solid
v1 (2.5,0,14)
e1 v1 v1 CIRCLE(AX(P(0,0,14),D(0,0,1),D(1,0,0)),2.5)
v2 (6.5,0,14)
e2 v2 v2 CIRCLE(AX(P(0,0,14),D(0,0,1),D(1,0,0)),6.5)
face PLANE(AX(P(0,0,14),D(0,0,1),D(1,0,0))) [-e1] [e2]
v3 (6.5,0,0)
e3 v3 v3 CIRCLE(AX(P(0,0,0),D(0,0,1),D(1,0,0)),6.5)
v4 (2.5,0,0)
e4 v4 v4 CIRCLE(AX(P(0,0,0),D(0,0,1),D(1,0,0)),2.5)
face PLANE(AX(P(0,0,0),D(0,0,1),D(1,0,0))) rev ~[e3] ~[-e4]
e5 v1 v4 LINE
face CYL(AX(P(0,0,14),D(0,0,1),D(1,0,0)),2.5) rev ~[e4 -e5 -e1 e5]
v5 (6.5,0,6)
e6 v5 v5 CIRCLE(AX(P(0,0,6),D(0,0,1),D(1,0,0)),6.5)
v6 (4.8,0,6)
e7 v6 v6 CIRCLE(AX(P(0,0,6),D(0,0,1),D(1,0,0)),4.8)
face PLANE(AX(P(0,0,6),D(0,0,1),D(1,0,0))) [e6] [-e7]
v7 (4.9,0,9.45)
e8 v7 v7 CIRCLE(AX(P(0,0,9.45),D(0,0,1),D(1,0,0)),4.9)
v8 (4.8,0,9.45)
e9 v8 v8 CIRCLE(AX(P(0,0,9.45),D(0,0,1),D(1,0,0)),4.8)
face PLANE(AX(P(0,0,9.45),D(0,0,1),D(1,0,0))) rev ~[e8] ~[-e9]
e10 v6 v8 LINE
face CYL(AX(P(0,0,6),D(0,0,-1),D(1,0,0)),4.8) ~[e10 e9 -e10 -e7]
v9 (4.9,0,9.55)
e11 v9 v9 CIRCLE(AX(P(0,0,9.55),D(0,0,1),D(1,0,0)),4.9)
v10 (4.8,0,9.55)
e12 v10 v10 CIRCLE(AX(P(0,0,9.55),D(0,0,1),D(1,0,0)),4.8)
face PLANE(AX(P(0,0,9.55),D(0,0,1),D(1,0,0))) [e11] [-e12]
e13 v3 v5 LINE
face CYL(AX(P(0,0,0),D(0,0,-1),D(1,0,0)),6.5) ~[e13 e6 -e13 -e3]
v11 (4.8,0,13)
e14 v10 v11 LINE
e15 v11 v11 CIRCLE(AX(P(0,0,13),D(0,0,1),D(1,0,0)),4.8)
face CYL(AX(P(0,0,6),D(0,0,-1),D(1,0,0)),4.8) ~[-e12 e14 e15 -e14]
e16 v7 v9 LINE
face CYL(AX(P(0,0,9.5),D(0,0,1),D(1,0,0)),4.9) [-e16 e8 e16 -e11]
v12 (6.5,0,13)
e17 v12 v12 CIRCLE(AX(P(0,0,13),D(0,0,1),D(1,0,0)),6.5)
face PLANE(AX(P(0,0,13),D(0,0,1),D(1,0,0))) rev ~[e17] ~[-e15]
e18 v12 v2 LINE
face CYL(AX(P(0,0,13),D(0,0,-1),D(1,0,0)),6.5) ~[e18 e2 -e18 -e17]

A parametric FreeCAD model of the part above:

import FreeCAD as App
import Part
import Sketcher

V = App.Vector
Q = App.Units.Quantity

doc = App.newDocument("Part")
body = doc.addObject("PartDesign::Body", "Body")

# Sketch on XY plane
sketch1 = doc.addObject("Sketcher::SketchObject", "Sketch")
body.addObject(sketch1)
sketch1.AttachmentSupport = (doc.XY_Plane, [""])
sketch1.MapMode = "FlatFace"
sketch1.addGeometry(Part.Circle(V(0, 0, 0), V(0, 0, 1), 6), False)
sketch1.addConstraint(Sketcher.Constraint("Coincident", 0, 3, -1, 1))
sketch1.addConstraint(Sketcher.Constraint("Diameter", 0, Q("13 mm")))
pad1 = doc.addObject("PartDesign::Pad", "Pad")
body.addObject(pad1)
pad1.Profile = sketch1
pad1.Length = 6

# Sketch on XY plane
sketch2 = doc.addObject("Sketcher::SketchObject", "Sketch001")
body.addObject(sketch2)
sketch2.AttachmentSupport = (doc.XY_Plane, [""])
sketch2.MapMode = "FlatFace"
sketch2.AttachmentOffset = App.Placement(V(0, 0, 6), App.Rotation())
sketch2.addGeometry(Part.Circle(V(0, 0, 0), V(0, 0, 1), 4.8), False)
sketch2.addConstraint(Sketcher.Constraint("Coincident", 0, 3, -1, 1))
sketch2.addConstraint(Sketcher.Constraint("Diameter", 0, Q("9.6 mm")))
pad2 = doc.addObject("PartDesign::Pad", "Pad001")
body.addObject(pad2)
pad2.Profile = sketch2
pad2.Length = 7

# Sketch on XY plane
sketch3 = doc.addObject("Sketcher::SketchObject", "Sketch002")
body.addObject(sketch3)
sketch3.AttachmentSupport = (doc.XY_Plane, [""])
sketch3.MapMode = "FlatFace"
sketch3.AttachmentOffset = App.Placement(V(0, 0, 13), App.Rotation())
sketch3.addGeometry(Part.Circle(V(0, 0, 0), V(0, 0, 1), 6), False)
sketch3.addConstraint(Sketcher.Constraint("Coincident", 0, 3, -1, 1))
sketch3.addConstraint(Sketcher.Constraint("Diameter", 0, Q("13 mm")))
pad3 = doc.addObject("PartDesign::Pad", "Pad002")
body.addObject(pad3)
pad3.Profile = sketch3
pad3.Length = 1

# Sketch on XY plane
sketch4 = doc.addObject("Sketcher::SketchObject", "Sketch003")
body.addObject(sketch4)
sketch4.AttachmentSupport = (doc.XY_Plane, [""])
sketch4.MapMode = "FlatFace"
sketch4.AttachmentOffset = App.Placement(V(0, 0, 14), App.Rotation())
sketch4.addGeometry(Part.Circle(V(0, 0, 0), V(0, 0, 1), 2.5), False)
sketch4.addConstraint(Sketcher.Constraint("Coincident", 0, 3, -1, 1))
sketch4.addConstraint(Sketcher.Constraint("Diameter", 0, Q("5 mm")))
pocket1 = doc.addObject("PartDesign::Pocket", "Pocket")
body.addObject(pocket1)
pocket1.Profile = sketch4
pocket1.Type = "ThroughAll"

# Sketch on XY plane
sketch5 = doc.addObject("Sketcher::SketchObject", "Sketch004")
body.addObject(sketch5)
sketch5.AttachmentSupport = (doc.XY_Plane, [""])
sketch5.MapMode = "FlatFace"
sketch5.AttachmentOffset = App.Placement(V(0, 0, 9.5), App.Rotation())
sketch5.addGeometry(Part.Circle(V(0, 0, 0), V(0, 0, 1), 4.9), False)
sketch5.addGeometry(Part.Circle(V(0, 0, 0), V(0, 0, 1), 4.8), False)
sketch5.addConstraint(Sketcher.Constraint("Coincident", 0, 3, -1, 1))
sketch5.addConstraint(Sketcher.Constraint("Coincident", 1, 3, -1, 1))
sketch5.addConstraint(Sketcher.Constraint("Diameter", 0, Q("9.8 mm")))
sketch5.addConstraint(Sketcher.Constraint("Diameter", 1, Q("9.6 mm")))
pad4 = doc.addObject("PartDesign::Pad", "Pad003")
body.addObject(pad4)
pad4.Profile = sketch5
pad4.Length = 0.1
pad4.Midplane = True

doc.recompute()
